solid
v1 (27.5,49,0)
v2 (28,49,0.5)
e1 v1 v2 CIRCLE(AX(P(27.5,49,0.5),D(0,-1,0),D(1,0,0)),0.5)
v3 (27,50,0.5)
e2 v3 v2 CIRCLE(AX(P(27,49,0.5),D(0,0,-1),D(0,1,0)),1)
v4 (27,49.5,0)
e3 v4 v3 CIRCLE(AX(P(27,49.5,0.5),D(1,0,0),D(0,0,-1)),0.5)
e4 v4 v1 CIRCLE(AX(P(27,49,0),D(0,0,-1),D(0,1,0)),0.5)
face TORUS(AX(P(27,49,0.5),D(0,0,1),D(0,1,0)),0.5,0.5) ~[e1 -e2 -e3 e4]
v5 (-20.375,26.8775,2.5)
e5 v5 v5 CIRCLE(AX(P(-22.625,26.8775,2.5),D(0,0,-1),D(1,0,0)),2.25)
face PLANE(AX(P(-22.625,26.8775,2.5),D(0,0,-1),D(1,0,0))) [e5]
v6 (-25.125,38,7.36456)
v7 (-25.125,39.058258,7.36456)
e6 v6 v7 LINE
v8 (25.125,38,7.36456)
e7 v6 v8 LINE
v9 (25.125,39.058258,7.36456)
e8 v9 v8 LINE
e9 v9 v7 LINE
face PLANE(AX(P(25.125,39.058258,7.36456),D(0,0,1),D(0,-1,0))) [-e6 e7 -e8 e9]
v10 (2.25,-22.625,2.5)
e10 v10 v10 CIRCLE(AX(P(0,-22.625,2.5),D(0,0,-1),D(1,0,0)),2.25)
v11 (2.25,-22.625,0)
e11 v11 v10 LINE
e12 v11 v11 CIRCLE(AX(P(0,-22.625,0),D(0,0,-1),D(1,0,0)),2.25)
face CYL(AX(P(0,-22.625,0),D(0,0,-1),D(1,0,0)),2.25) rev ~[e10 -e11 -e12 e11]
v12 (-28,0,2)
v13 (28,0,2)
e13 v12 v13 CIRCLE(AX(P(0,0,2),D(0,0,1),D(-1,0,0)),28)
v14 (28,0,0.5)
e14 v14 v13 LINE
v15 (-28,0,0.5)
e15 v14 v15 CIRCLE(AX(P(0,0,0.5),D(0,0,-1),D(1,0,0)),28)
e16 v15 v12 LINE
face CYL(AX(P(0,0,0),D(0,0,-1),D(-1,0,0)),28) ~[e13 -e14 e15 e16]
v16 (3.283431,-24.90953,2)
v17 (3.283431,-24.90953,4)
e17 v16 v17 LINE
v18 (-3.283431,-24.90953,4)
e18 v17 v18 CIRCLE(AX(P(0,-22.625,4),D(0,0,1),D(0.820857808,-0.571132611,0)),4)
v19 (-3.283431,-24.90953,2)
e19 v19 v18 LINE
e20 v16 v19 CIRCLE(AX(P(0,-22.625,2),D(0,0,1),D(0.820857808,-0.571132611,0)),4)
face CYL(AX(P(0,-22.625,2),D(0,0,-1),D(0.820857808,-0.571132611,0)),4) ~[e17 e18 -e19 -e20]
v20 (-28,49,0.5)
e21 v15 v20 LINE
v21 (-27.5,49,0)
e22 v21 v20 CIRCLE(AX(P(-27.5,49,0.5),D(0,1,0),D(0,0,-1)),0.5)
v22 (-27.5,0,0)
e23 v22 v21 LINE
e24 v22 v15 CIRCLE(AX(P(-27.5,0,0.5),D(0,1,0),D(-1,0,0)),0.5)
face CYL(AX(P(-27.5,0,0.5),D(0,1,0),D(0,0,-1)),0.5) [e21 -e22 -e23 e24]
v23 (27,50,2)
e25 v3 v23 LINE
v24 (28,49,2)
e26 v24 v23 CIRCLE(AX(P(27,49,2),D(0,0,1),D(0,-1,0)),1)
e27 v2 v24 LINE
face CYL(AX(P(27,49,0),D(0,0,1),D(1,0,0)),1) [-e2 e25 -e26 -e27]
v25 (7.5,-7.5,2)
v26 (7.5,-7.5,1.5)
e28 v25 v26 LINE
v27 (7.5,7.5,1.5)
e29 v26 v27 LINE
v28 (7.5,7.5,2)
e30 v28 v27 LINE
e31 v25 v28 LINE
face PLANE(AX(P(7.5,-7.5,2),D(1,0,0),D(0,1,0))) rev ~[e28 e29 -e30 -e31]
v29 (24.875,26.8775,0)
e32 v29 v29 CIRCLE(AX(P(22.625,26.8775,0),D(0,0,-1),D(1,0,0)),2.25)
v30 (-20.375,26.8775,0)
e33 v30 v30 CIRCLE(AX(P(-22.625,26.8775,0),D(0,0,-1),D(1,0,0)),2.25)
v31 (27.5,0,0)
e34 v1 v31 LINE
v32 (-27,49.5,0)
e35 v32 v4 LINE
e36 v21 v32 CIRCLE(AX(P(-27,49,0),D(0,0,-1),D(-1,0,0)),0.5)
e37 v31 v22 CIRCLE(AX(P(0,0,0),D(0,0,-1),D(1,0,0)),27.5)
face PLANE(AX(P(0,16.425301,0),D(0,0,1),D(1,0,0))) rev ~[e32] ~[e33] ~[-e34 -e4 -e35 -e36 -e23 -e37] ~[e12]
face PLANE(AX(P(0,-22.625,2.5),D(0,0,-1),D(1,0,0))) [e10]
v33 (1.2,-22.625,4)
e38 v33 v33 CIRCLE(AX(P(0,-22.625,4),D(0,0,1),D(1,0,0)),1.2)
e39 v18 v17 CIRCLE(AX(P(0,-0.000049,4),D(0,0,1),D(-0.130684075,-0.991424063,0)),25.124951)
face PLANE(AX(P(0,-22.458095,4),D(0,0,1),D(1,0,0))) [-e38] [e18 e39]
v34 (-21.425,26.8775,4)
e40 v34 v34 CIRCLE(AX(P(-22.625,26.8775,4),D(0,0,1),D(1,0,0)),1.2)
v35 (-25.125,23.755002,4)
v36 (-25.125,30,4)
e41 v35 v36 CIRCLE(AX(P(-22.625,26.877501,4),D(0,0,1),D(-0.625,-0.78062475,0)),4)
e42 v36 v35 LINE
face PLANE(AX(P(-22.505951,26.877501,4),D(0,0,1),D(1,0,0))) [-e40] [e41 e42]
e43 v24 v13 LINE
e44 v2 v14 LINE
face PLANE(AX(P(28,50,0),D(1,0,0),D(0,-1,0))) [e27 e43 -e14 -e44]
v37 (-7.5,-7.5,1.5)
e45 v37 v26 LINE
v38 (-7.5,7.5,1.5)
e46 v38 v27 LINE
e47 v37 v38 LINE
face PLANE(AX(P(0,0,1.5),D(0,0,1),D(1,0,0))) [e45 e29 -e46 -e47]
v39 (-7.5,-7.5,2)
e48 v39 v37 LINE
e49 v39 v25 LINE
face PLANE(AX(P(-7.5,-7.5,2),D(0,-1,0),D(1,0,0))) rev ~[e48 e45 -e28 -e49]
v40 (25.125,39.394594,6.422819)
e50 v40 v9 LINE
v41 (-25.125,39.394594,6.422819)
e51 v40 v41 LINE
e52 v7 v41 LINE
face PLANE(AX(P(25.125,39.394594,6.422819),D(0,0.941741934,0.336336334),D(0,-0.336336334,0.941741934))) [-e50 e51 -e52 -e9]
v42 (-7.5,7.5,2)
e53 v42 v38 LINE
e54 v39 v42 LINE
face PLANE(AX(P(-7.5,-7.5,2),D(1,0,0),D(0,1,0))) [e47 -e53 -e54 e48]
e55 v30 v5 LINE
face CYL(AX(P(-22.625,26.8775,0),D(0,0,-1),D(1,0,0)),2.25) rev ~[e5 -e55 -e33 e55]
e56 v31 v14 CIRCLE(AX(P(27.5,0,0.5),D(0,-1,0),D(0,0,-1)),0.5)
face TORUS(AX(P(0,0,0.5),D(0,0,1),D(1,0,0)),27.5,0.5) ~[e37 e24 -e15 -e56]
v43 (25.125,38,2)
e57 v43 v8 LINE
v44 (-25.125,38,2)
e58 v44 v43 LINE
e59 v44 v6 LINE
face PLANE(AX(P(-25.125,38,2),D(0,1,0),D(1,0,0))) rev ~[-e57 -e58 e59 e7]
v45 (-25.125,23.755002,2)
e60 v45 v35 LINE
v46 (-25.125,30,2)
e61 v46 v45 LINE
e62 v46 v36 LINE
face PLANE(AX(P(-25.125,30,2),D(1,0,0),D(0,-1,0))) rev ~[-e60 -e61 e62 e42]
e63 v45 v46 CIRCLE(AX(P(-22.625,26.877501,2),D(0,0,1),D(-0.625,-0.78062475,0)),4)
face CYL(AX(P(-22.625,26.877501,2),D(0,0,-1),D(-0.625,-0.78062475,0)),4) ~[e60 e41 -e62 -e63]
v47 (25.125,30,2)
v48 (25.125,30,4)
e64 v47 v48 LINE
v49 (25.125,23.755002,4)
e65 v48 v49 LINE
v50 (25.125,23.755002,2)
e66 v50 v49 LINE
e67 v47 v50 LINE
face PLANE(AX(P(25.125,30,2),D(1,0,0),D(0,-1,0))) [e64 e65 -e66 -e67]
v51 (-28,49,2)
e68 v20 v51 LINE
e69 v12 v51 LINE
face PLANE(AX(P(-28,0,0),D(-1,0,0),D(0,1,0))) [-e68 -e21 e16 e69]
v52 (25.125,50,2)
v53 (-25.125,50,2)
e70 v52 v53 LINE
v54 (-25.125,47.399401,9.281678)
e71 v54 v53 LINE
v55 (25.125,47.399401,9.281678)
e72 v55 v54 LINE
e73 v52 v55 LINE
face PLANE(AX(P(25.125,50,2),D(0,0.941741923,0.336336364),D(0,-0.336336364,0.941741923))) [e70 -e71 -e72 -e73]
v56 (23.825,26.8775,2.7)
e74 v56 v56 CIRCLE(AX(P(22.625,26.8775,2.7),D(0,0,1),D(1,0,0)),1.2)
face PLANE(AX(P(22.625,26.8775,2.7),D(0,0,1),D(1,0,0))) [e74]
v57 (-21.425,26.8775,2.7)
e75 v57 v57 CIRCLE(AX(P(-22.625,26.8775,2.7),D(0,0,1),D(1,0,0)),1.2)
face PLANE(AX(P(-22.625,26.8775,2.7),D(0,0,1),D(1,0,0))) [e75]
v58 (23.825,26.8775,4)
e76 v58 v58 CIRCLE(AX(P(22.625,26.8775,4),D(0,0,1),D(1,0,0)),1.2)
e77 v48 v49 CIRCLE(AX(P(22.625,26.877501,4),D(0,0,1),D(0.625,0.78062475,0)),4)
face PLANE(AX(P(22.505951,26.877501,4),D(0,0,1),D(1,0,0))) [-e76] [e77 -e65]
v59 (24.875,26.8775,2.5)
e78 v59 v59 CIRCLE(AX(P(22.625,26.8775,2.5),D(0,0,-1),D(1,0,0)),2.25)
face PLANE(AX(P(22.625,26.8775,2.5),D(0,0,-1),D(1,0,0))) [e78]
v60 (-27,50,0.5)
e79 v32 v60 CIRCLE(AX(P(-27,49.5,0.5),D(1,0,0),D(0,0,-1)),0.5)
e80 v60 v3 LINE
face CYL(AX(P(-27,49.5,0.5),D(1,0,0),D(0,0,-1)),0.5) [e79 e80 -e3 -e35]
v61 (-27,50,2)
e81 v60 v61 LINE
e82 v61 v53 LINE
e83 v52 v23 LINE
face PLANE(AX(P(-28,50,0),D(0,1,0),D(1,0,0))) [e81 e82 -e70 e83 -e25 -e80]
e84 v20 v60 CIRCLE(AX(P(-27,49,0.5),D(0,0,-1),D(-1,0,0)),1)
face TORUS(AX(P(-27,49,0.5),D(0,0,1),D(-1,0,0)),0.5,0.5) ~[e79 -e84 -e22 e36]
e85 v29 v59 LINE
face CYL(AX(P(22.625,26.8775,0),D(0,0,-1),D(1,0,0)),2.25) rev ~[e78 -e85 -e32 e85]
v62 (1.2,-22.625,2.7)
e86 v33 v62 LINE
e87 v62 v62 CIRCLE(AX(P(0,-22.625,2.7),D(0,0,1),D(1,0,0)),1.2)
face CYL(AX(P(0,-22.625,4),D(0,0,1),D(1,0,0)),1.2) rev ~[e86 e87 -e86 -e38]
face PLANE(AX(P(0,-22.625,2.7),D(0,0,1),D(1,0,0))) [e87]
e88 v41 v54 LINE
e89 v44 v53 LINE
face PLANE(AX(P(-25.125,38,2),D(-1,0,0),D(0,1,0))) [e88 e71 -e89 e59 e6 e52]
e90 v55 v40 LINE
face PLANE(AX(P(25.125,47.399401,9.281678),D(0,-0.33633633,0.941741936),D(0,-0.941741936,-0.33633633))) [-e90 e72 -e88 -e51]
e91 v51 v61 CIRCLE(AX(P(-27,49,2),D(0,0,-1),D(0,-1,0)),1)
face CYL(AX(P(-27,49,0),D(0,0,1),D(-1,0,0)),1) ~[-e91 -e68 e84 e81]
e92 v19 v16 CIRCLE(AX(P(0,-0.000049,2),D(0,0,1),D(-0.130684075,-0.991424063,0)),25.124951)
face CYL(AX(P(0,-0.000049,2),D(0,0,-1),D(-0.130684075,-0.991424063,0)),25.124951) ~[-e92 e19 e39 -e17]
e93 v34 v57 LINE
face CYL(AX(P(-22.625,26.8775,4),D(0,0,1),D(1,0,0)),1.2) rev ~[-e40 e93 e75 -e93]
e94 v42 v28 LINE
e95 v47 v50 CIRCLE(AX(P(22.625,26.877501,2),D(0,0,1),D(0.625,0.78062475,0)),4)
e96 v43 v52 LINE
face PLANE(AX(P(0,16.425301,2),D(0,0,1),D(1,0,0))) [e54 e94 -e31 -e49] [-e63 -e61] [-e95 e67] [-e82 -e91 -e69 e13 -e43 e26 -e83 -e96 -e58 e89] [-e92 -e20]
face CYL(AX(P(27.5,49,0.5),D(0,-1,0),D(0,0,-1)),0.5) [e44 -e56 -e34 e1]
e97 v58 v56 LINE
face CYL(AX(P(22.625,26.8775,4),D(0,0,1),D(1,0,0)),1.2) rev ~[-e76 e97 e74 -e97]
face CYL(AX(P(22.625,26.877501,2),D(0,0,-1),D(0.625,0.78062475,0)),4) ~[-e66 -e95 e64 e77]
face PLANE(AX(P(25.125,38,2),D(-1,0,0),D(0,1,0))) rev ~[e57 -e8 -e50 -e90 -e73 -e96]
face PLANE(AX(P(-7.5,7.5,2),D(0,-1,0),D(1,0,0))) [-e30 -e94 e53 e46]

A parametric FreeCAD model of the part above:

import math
import FreeCAD as App
import Part
import Sketcher

V = App.Vector


def edges_at(feature, points):
    """Names of the edges that pass closest to the given points."""
    edges = feature.Shape.Edges
    near = lambda p: min(range(len(edges)), key=lambda i: edges[i].distToShape(Part.Vertex(*p))[0])
    return sorted({f"Edge{near(p) + 1}" for p in points})


def add_polygon(sketch, points):
    """Adds a closed chain of lines whose ends are joined by coincident constraints."""
    first, n = sketch.GeometryCount, len(points)
    for a, b in zip(points, points[1:] + points[:1]):
        sketch.addGeometry(Part.LineSegment(App.Vector(*a, 0), App.Vector(*b, 0)), False)
    for i in range(n):
        sketch.addConstraint(Sketcher.Constraint("Coincident", first + i, 2, first + (i + 1) % n, 1))

doc = App.newDocument("Part")
body = doc.addObject("PartDesign::Body", "Body")

sketch1 = body.newObject("Sketcher::SketchObject", "Sketch")
sketch1.AttachmentSupport = (doc.getObject("XY_Plane"), [""])
sketch1.MapMode = "FlatFace"
sketch1.addGeometry([
    Part.ArcOfCircle(Part.Circle(V(0, 0, 0), V(0, 0, 1), 28), math.radians(180), math.radians(360)),
    Part.LineSegment(V(28, 0, 0), V(28, 50, 0)),
    Part.LineSegment(V(28, 50, 0), V(-28, 50, 0)),
    Part.LineSegment(V(-28, 50, 0), V(-28, 0, 0)),
], False)
sketch1.addConstraint([
    Sketcher.Constraint("Tangent", 0, 2, 1, 1),
    Sketcher.Constraint("Coincident", 1, 2, 2, 1),
    Sketcher.Constraint("Coincident", 2, 2, 3, 1),
    Sketcher.Constraint("Tangent", 3, 2, 0, 1),
    Sketcher.Constraint("Vertical", 1),
    Sketcher.Constraint("Horizontal", 2),
    Sketcher.Constraint("Vertical", 3),
    Sketcher.Constraint("Coincident", 0, 3, -1, 1),
    Sketcher.Constraint("Radius", 0, 28.0),
    Sketcher.Constraint("DistanceY", 1, 1, 1, 2, 50.0),
])
pad1 = body.newObject("PartDesign::Pad", "Pad")
pad1.Profile = sketch1
pad1.Length = 2

sketch2 = body.newObject("Sketcher::SketchObject", "Sketch001")
sketch2.AttachmentSupport = (doc.getObject("XY_Plane"), [""])
sketch2.MapMode = "FlatFace"
sketch2.AttachmentOffset = App.Placement(V(0, 0, 2), App.Rotation())
add_polygon(sketch2, [(-25, 50), (-25, 38), (25, 38), (25, 50)])
sketch2.addConstraint([
    Sketcher.Constraint("Vertical", 0),
    Sketcher.Constraint("Horizontal", 1),
    Sketcher.Constraint("Vertical", 2),
    Sketcher.Constraint("Horizontal", 3),
    Sketcher.Constraint("DistanceY", 0, 2, 0, 1, 12.0),
    Sketcher.Constraint("DistanceY", -1, 1, 0, 2, 38.0),
    Sketcher.Constraint("DistanceX", 1, 1, 1, 2, 50.25),
    Sketcher.Constraint("DistanceX", 0, 2, -1, 1, 25.125),
])
pad2 = body.newObject("PartDesign::Pad", "Pad001")
pad2.Profile = sketch2
pad2.Length = 10

sketch3 = body.newObject("Sketcher::SketchObject", "Sketch002")
sketch3.AttachmentSupport = (doc.getObject("YZ_Plane"), [""])
sketch3.MapMode = "FlatFace"
sketch3.AttachmentOffset = App.Placement(V(0, 0, 25.125), App.Rotation())
add_polygon(sketch3, [(47.4, 9.3), (50, 2), (52, 2), (52, 14), (34, 14), (34, 7.4), (39.1, 7.4), (39.4, 6.4)])
sketch3.addConstraint([
    Sketcher.Constraint("Horizontal", 1),
    Sketcher.Constraint("Vertical", 2),
    Sketcher.Constraint("Horizontal", 3),
    Sketcher.Constraint("Vertical", 4),
    Sketcher.Constraint("Horizontal", 5),
    Sketcher.Constraint("Parallel", 0, 6),
    Sketcher.Constraint("Perpendicular", 6, 7),
    Sketcher.Constraint("DistanceX", 1, 1, 1, 2, 2.0),
    Sketcher.Constraint("DistanceX", 3, 2, 3, 1, 18.0),
    Sketcher.Constraint("DistanceY", 2, 1, 2, 2, 12.0),
    Sketcher.Constraint("Distance", 6, 0.999999),
    Sketcher.Constraint("DistanceX", -1, 1, 0, 2, 50.0),
    Sketcher.Constraint("DistanceY", -1, 1, 0, 2, 2.0),
    Sketcher.Constraint("Distance", 7, 8.500001),
    Sketcher.Constraint("DistanceX", 5, 1, 5, 2, 5.058258),
    Sketcher.Constraint("DistanceY", 4, 2, 4, 1, 6.63544),
])
pocket1 = body.newObject("PartDesign::Pocket", "Pocket")
pocket1.Profile = sketch3
pocket1.Type = "ThroughAll"

sketch4 = body.newObject("Sketcher::SketchObject", "Sketch003")
sketch4.AttachmentSupport = (doc.getObject("XY_Plane"), [""])
sketch4.MapMode = "FlatFace"
sketch4.AttachmentOffset = App.Placement(V(0, 0, 2), App.Rotation())
add_polygon(sketch4, [(-8, 8), (-8, -8), (8, -8), (8, 8)])
sketch4.addConstraint([
    Sketcher.Constraint("Vertical", 0),
    Sketcher.Constraint("Horizontal", 1),
    Sketcher.Constraint("Vertical", 2),
    Sketcher.Constraint("Horizontal", 3),
    Sketcher.Constraint("Symmetric", 0, 2, 2, 2, -1, 1),
    Sketcher.Constraint("Equal", 3, 0),
    Sketcher.Constraint("DistanceX", 1, 1, 1, 2, 15.0),
])
pocket2 = body.newObject("PartDesign::Pocket", "Pocket001")
pocket2.Profile = sketch4
pocket2.Length = 0.5

sketch5 = body.newObject("Sketcher::SketchObject", "Sketch004")
sketch5.AttachmentSupport = (doc.getObject("XY_Plane"), [""])
sketch5.MapMode = "FlatFace"
sketch5.AttachmentOffset = App.Placement(V(0, 0, 2), App.Rotation())
sketch5.addGeometry([
    Part.ArcOfCircle(Part.Circle(V(-22.6, 26.9, 0), V(0, 0, 1), 4), math.radians(-129), math.radians(129)),
    Part.LineSegment(V(-25.1, 30, 0), V(-25.1, 23.8, 0)),
    Part.ArcOfCircle(Part.Circle(V(22.6, 26.9, 0), V(0, 0, 1), 4), math.radians(51), math.radians(309)),
    Part.LineSegment(V(25.1, 23.8, 0), V(25.1, 30, 0)),
    Part.ArcOfCircle(Part.Circle(V(0, -22.6, 0), V(0, 0, 1), 4), math.radians(-35), math.radians(215)),
    Part.ArcOfCircle(Part.Circle(V(0, 0, 0), V(0, 0, 1), 25.1), math.radians(-97.51), math.radians(-82.49)),
], False)
sketch5.addConstraint([
    Sketcher.Constraint("Coincident", 0, 1, 1, 2),
    Sketcher.Constraint("Coincident", 1, 1, 0, 2),
    Sketcher.Constraint("Coincident", 2, 1, 3, 2),
    Sketcher.Constraint("Coincident", 3, 1, 2, 2),
    Sketcher.Constraint("Coincident", 4, 1, 5, 2),
    Sketcher.Constraint("Coincident", 5, 1, 4, 2),
    Sketcher.Constraint("Vertical", 1),
    Sketcher.Constraint("Vertical", 3),
    Sketcher.Constraint("Equal", 0, 2),
    Sketcher.Constraint("Equal", 2, 4),
    Sketcher.Constraint("Symmetric", 0, 3, 2, 3, -2),
    Sketcher.Constraint("Symmetric", 4, 1, 5, 1, -2),
    Sketcher.Constraint("Horizontal", 1, 1, 2, 1),
    Sketcher.Constraint("Radius", 0, 4.0),
    Sketcher.Constraint("DistanceY", -1, 1, 1, 1, 30.0),
    Sketcher.Constraint("DistanceX", 0, 1, 0, 3, 2.5),
    Sketcher.Constraint("Radius", 5, 25.124951),
    Sketcher.Constraint("DistanceX", 0, 3, 2, 3, 45.25),
    Sketcher.Constraint("DistanceY", 4, 3, 0, 1, 46.380002),
    Sketcher.Constraint("DistanceX", -1, 1, 4, 1, 3.283431),
])
pad3 = body.newObject("PartDesign::Pad", "Pad002")
pad3.Profile = sketch5
pad3.Length = 2

sketch6 = body.newObject("Sketcher::SketchObject", "Sketch005")
sketch6.AttachmentSupport = (doc.getObject("XY_Plane"), [""])
sketch6.MapMode = "FlatFace"
sketch6.AttachmentOffset = App.Placement(V(0, 0, 4), App.Rotation())
sketch6.addGeometry([
    Part.Circle(V(-22.6, 26.9, 0), V(0, 0, 1), 1.2),
    Part.Circle(V(22.6, 26.9, 0), V(0, 0, 1), 1.2),
    Part.Circle(V(0, -22.6, 0), V(0, 0, 1), 1.2),
], False)
sketch6.addConstraint([
    Sketcher.Constraint("Equal", 0, 1),
    Sketcher.Constraint("Equal", 1, 2),
    Sketcher.Constraint("Symmetric", 0, 3, 1, 3, -2),
    Sketcher.Constraint("PointOnObject", 2, 3, -2),
    Sketcher.Constraint("Diameter", 0, 2.4),
    Sketcher.Constraint("DistanceX", 0, 3, 1, 3, 45.25),
    Sketcher.Constraint("DistanceY", 2, 3, -1, 1, 22.625),
    Sketcher.Constraint("DistanceY", -1, 1, 0, 3, 26.8775),
])
pocket3 = body.newObject("PartDesign::Pocket", "Pocket002")
pocket3.Profile = sketch6
pocket3.Length = 1.3

sketch7 = body.newObject("Sketcher::SketchObject", "Sketch006")
sketch7.AttachmentSupport = (doc.getObject("XY_Plane"), [""])
sketch7.MapMode = "FlatFace"
sketch7.addGeometry([
    Part.Circle(V(0, -22.6, 0), V(0, 0, 1), 2.2),
    Part.Circle(V(-22.6, 26.9, 0), V(0, 0, 1), 2.2),
    Part.Circle(V(22.6, 26.9, 0), V(0, 0, 1), 2.2),
], False)
sketch7.addConstraint([
    Sketcher.Constraint("Equal", 0, 1),
    Sketcher.Constraint("Equal", 1, 2),
    Sketcher.Constraint("Symmetric", 1, 3, 2, 3, -2),
    Sketcher.Constraint("PointOnObject", 0, 3, -2),
    Sketcher.Constraint("Diameter", 0, 4.5),
    Sketcher.Constraint("DistanceX", 1, 3, 2, 3, 45.25),
    Sketcher.Constraint("DistanceY", 0, 3, -1, 1, 22.625),
    Sketcher.Constraint("DistanceY", -1, 1, 1, 3, 26.8775),
])
pocket4 = body.newObject("PartDesign::Pocket", "Pocket003")
pocket4.Profile = sketch7
pocket4.Length = 2.5
pocket4.Reversed = True
doc.recompute()

fillet = body.newObject("PartDesign::Fillet", "Fillet")
fillet.Base = (pocket4, edges_at(pocket4, [(-28, 50, 1), (28, 50, 1)]))
fillet.Radius = 1
doc.recompute()

fillet2 = body.newObject("PartDesign::Fillet", "Fillet001")
fillet2.Base = (fillet, edges_at(fillet, [
    (0, 50, 0),
    (27.707, 49.707, 0),
    (28, 24.5, 0),
    (0, -28, 0),
    (-28, 24.5, 0),
    (-27.707, 49.707, 0),
]))
fillet2.Radius = 0.5

doc.recompute()
